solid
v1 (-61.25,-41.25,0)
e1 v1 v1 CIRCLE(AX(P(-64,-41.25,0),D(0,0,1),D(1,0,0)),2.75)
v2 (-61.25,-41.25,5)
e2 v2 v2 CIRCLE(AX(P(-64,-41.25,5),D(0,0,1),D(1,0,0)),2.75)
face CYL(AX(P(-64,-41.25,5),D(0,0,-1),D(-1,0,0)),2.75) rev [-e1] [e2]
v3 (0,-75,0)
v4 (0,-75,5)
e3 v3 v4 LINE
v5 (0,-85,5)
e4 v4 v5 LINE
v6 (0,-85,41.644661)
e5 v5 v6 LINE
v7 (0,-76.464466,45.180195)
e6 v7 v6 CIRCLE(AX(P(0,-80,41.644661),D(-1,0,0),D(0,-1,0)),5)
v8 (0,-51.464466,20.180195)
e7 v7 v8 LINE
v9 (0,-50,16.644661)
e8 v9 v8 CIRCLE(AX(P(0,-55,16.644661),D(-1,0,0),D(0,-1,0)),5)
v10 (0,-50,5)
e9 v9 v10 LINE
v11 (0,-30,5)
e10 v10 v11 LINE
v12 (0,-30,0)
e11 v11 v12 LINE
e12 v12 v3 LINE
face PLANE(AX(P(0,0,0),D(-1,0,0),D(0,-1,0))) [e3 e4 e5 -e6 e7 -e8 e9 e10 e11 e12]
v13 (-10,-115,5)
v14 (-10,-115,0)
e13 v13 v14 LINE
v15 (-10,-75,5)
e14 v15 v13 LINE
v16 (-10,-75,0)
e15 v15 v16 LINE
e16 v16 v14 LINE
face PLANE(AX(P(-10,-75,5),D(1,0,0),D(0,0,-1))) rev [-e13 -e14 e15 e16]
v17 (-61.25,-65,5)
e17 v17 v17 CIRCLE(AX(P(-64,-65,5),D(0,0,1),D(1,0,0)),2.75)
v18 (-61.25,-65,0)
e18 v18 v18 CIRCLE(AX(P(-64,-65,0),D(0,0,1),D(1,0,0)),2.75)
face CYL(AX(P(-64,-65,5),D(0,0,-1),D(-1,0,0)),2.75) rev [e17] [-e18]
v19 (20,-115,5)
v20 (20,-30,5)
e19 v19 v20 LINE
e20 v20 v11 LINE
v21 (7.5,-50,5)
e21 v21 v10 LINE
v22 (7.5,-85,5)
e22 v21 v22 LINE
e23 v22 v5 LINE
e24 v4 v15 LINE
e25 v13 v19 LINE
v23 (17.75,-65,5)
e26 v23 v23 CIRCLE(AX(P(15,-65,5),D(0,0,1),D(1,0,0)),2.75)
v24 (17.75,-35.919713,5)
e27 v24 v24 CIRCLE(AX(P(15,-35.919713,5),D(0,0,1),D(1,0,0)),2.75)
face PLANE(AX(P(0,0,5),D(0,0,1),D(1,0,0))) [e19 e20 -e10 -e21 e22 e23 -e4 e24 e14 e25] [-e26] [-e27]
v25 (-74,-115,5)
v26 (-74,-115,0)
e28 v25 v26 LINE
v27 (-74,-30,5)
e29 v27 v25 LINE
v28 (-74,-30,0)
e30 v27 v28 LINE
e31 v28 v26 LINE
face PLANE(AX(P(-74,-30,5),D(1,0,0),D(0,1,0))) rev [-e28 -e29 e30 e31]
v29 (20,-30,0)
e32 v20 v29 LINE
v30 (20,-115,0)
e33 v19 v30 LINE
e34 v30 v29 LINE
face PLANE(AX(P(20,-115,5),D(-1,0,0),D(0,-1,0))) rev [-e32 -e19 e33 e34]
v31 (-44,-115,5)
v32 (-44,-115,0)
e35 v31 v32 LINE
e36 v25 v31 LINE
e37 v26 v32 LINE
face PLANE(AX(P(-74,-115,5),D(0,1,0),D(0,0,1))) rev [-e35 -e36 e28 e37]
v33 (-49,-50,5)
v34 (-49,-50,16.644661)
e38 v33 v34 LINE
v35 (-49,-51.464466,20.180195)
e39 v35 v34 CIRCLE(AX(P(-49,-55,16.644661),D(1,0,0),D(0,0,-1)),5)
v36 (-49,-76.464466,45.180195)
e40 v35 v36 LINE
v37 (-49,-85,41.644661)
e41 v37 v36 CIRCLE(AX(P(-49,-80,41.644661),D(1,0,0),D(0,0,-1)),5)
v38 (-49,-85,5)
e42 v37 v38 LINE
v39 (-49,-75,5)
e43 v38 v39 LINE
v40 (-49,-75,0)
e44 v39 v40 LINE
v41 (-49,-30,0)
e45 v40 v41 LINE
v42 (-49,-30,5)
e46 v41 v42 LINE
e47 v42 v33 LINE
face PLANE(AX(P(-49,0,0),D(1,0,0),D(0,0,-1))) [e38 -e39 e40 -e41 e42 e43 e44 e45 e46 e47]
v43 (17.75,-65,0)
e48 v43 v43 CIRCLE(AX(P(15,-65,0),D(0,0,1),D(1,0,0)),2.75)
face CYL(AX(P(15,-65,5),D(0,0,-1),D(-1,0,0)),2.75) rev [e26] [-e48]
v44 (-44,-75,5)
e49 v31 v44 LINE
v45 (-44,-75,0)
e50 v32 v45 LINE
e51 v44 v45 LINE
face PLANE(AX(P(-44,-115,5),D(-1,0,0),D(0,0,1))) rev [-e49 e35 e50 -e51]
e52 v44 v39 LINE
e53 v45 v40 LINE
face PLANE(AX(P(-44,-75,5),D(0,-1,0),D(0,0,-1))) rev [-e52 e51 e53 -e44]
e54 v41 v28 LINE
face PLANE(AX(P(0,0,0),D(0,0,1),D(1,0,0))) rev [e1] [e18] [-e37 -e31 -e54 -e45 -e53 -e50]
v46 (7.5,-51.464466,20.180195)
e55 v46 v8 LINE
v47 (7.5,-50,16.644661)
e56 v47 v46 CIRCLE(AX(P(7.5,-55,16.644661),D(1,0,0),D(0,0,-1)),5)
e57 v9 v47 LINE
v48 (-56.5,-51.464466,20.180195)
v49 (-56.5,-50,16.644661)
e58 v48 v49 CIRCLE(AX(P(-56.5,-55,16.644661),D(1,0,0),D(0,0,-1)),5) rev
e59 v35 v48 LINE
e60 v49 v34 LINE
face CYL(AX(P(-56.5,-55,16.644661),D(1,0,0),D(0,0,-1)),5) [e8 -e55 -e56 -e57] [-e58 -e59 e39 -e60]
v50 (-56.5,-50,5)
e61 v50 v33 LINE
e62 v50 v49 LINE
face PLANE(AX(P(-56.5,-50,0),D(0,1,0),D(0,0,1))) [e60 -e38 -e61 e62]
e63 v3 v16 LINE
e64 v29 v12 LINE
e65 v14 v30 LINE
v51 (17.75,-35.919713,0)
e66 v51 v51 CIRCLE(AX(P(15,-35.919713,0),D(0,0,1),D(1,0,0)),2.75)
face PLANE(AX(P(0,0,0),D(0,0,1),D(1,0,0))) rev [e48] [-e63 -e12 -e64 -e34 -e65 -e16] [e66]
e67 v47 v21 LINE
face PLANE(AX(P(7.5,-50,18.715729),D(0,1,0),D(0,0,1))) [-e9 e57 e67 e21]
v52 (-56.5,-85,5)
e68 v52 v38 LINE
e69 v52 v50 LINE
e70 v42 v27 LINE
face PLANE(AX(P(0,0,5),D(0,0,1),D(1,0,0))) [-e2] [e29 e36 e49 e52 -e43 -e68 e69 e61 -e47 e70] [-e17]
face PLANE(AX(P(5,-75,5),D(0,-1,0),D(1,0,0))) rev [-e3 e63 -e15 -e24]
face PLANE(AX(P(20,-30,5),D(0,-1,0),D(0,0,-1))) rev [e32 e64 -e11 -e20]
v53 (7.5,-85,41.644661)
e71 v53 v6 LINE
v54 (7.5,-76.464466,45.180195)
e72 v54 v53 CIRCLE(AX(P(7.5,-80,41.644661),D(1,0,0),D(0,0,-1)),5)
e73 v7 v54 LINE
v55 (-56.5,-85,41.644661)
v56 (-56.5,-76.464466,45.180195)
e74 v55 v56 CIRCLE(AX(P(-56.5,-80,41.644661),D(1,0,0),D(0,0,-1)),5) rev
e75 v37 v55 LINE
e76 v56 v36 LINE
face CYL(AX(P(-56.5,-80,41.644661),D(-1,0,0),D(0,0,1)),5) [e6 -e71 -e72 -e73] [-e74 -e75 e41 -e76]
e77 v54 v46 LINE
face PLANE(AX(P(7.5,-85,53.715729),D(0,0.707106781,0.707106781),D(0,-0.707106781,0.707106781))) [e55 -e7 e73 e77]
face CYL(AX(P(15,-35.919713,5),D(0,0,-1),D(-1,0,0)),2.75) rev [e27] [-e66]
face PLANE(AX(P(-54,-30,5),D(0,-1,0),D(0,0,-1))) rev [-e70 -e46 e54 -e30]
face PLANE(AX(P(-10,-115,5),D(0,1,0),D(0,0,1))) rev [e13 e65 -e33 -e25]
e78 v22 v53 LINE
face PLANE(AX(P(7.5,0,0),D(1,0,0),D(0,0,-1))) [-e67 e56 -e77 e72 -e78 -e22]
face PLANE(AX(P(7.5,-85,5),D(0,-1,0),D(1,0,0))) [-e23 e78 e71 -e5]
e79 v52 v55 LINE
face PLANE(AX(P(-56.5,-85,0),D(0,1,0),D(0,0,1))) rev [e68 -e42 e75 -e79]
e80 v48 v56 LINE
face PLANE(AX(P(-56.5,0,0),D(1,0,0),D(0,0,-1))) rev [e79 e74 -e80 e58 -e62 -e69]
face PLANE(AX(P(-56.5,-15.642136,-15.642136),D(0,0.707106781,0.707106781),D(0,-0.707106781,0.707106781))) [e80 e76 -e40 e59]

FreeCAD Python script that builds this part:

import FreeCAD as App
import Part
import Sketcher
Q = App.Units.Quantity


def edges_at(feature, points):
    """Names of the edges that pass closest to the given points."""
    edges = feature.Shape.Edges
    near = lambda p: min(range(len(edges)), key=lambda i: edges[i].distToShape(Part.Vertex(*p))[0])
    return sorted({f"Edge{near(p) + 1}" for p in points})


def add_polygon(sketch, points):
    """Adds a closed chain of lines whose ends are joined by coincident constraints."""
    first, n = sketch.GeometryCount, len(points)
    for a, b in zip(points, points[1:] + points[:1]):
        sketch.addGeometry(Part.LineSegment(App.Vector(*a, 0), App.Vector(*b, 0)), False)
    for i in range(n):
        sketch.addConstraint(Sketcher.Constraint("Coincident", first + i, 2, first + (i + 1) % n, 1))

doc = App.newDocument("Part")
body = doc.addObject("PartDesign::Body", "Body")

sketch1 = body.newObject("Sketcher::SketchObject", "Sketch")
sketch1.AttachmentSupport = (doc.getObject("XY_Plane"), [""])
sketch1.MapMode = "FlatFace"
add_polygon(sketch1, [(-10, -75), (-10, -115), (20, -115), (20, -30), (5, -30), (5, -75)])
sketch1.addGeometry(Part.Circle(App.Vector(15, -65, 0), App.Vector(0, 0, 1), 2.75), False)
sketch1.addGeometry(Part.Circle(App.Vector(15, -35.919713, 0), App.Vector(0, 0, 1), 2.75), False)
sketch1.addConstraint([
    Sketcher.Constraint("Vertical", 0),
    Sketcher.Constraint("Horizontal", 1),
    Sketcher.Constraint("Vertical", 2),
    Sketcher.Constraint("Horizontal", 3),
    Sketcher.Constraint("Vertical", 4),
    Sketcher.Constraint("Horizontal", 5),
    Sketcher.Constraint("Equal", 6, 7),
    Sketcher.Constraint("Vertical", 6, 3, 7, 3),
    Sketcher.Constraint("Equal", 3, 5),
    Sketcher.Constraint("Diameter", 6, 5.5),
    Sketcher.Constraint("DistanceX", 1, 1, 1, 2, 30.0),
    Sketcher.Constraint("DistanceY", 0, 2, 0, 1, 40.0),
    Sketcher.Constraint("DistanceY", 2, 1, 2, 2, 85.0),
    Sketcher.Constraint("DistanceX", -1, 1, 6, 3, 15.0),
    Sketcher.Constraint("DistanceY", 6, 3, -1, 1, 65.0),
    Sketcher.Constraint("DistanceX", 0, 2, -1, 1, 10.0),
    Sketcher.Constraint("DistanceY", 0, 2, -1, 1, 115.0),
    Sketcher.Constraint("DistanceY", 7, 3, -1, 1, 35.919713),
])
pad1 = body.newObject("PartDesign::Pad", "Pad")
pad1.Profile = sketch1
pad1.Length = 5

sketch2 = body.newObject("Sketcher::SketchObject", "Sketch001")
sketch2.AttachmentSupport = (doc.getObject("YZ_Plane"), [""])
sketch2.MapMode = "FlatFace"
sketch2.AttachmentOffset = App.Placement(App.Vector(0, 0, 5), App.Rotation())
add_polygon(sketch2, [(-30, 0), (-75, 0), (-75, 5), (-85, 5), (-85, 53.715729), (-50, 18.715729), (-50, 5), (-30, 5)])
sketch2.addConstraint([
    Sketcher.Constraint("Horizontal", 0),
    Sketcher.Constraint("Vertical", 1),
    Sketcher.Constraint("Horizontal", 2),
    Sketcher.Constraint("Vertical", 3),
    Sketcher.Constraint("Vertical", 5),
    Sketcher.Constraint("Horizontal", 6),
    Sketcher.Constraint("Vertical", 7),
    Sketcher.Constraint("PointOnObject", 0, 2, -1),
    Sketcher.Constraint("Horizontal", 2, 2, 5, 2),
    Sketcher.Constraint("DistanceX", 0, 2, 0, 1, 45.0),
    Sketcher.Constraint("DistanceX", 2, 2, 2, 1, 10.0),
    Sketcher.Constraint("DistanceX", 6, 1, 6, 2, 20.0),
    Sketcher.Constraint("DistanceY", 1, 1, 1, 2, 5.0),
    Sketcher.Constraint("Angle", 4, Q("-45 deg")),
    Sketcher.Constraint("DistanceX", 0, 2, -1, 1, 75.0),
    Sketcher.Constraint("DistanceY", 3, 1, 3, 2, 48.715729),
])
pad2 = body.newObject("PartDesign::Pad", "Pad001")
pad2.Profile = sketch2
pad2.Length = 2.5

sketch3 = body.newObject("Sketcher::SketchObject", "Sketch002")
sketch3.AttachmentSupport = (doc.getObject("YZ_Plane"), [""])
sketch3.MapMode = "FlatFace"
sketch3.AttachmentOffset = App.Placement(App.Vector(0, 0, 5), App.Rotation())
add_polygon(sketch3, [(-30, 0), (-75, 0), (-75, 5), (-85, 5), (-85, 53.715729), (-50, 18.715729), (-50, 5), (-30, 5)])
sketch3.addConstraint([
    Sketcher.Constraint("Horizontal", 0),
    Sketcher.Constraint("Vertical", 1),
    Sketcher.Constraint("Horizontal", 2),
    Sketcher.Constraint("Vertical", 3),
    Sketcher.Constraint("Vertical", 5),
    Sketcher.Constraint("Horizontal", 6),
    Sketcher.Constraint("Vertical", 7),
    Sketcher.Constraint("PointOnObject", 0, 2, -1),
    Sketcher.Constraint("Horizontal", 2, 2, 5, 2),
    Sketcher.Constraint("DistanceX", 0, 2, 0, 1, 45.0),
    Sketcher.Constraint("DistanceX", 2, 2, 2, 1, 10.0),
    Sketcher.Constraint("DistanceX", 6, 1, 6, 2, 20.0),
    Sketcher.Constraint("DistanceY", 1, 1, 1, 2, 5.0),
    Sketcher.Constraint("Angle", 4, Q("-45 deg")),
    Sketcher.Constraint("DistanceX", 0, 2, -1, 1, 75.0),
    Sketcher.Constraint("DistanceY", 3, 1, 3, 2, 48.715729),
])
pad3 = body.newObject("PartDesign::Pad", "Pad002")
pad3.Profile = sketch3
pad3.Length = 5
pad3.Reversed = True
doc.recompute()

fillet = body.newObject("PartDesign::Fillet", "Fillet")
fillet.Base = (pad3, edges_at(pad3, [(3.75, -85, 53.716)]))
fillet.Radius = 5
doc.recompute()

fillet2 = body.newObject("PartDesign::Fillet", "Fillet001")
fillet2.Base = (fillet, edges_at(fillet, [(3.75, -50, 18.716)]))
fillet2.Radius = 5
body2 = doc.addObject("PartDesign::Body", "Body001")

sketch4 = body2.newObject("Sketcher::SketchObject", "Sketch003")
sketch4.AttachmentSupport = (doc.getObject("XY_Plane001"), [""])
sketch4.MapMode = "FlatFace"
add_polygon(sketch4, [(-74, -30), (-74, -115), (-44, -115), (-44, -75), (-54, -75), (-54, -30)])
sketch4.addGeometry(Part.Circle(App.Vector(-64, -65, 0), App.Vector(0, 0, 1), 2.75), False)
sketch4.addGeometry(Part.Circle(App.Vector(-64, -41.25, 0), App.Vector(0, 0, 1), 2.75), False)
sketch4.addConstraint([
    Sketcher.Constraint("Vertical", 0),
    Sketcher.Constraint("Horizontal", 1),
    Sketcher.Constraint("Vertical", 2),
    Sketcher.Constraint("Horizontal", 3),
    Sketcher.Constraint("Vertical", 4),
    Sketcher.Constraint("Horizontal", 5),
    Sketcher.Constraint("Equal", 6, 7),
    Sketcher.Constraint("Vertical", 6, 3, 7, 3),
    Sketcher.Constraint("Diameter", 6, 5.5),
    Sketcher.Constraint("DistanceX", 1, 1, 1, 2, 30.0),
    Sketcher.Constraint("DistanceX", 3, 2, 3, 1, 10.0),
    Sketcher.Constraint("DistanceY", 0, 2, 0, 1, 85.0),
    Sketcher.Constraint("DistanceY", 2, 1, 2, 2, 40.0),
    Sketcher.Constraint("DistanceX", 6, 3, -1, 1, 64.0),
    Sketcher.Constraint("DistanceY", 6, 3, -1, 1, 65.0),
    Sketcher.Constraint("DistanceX", 0, 2, -1, 1, 74.0),
    Sketcher.Constraint("DistanceY", 0, 2, -1, 1, 115.0),
    Sketcher.Constraint("DistanceY", 7, 3, -1, 1, 41.25),
])
pad4 = body2.newObject("PartDesign::Pad", "Pad003")
pad4.Profile = sketch4
pad4.Length = 5

sketch5 = body2.newObject("Sketcher::SketchObject", "Sketch004")
sketch5.AttachmentSupport = (doc.getObject("YZ_Plane001"), [""])
sketch5.MapMode = "FlatFace"
sketch5.AttachmentOffset = App.Placement(App.Vector(0, 0, -54), App.Rotation())
add_polygon(sketch5, [(-50, 5), (-50, 18.715729), (-85, 53.715729), (-85, 5)])
sketch5.addConstraint([
    Sketcher.Constraint("Vertical", 0),
    Sketcher.Constraint("Vertical", 2),
    Sketcher.Constraint("Horizontal", 3),
    Sketcher.Constraint("DistanceX", 3, 1, 3, 2, 35.0),
    Sketcher.Constraint("Angle", 1, Q("135 deg")),
    Sketcher.Constraint("DistanceX", 0, 2, -1, 1, 50.0),
    Sketcher.Constraint("DistanceY", -1, 1, 2, 2, 5.0),
    Sketcher.Constraint("DistanceY", 0, 1, 0, 2, 13.715729),
])
pad5 = body2.newObject("PartDesign::Pad", "Pad004")
pad5.Profile = sketch5
pad5.Length = 2.5
pad5.Reversed = True

sketch6 = body2.newObject("Sketcher::SketchObject", "Sketch005")
sketch6.AttachmentSupport = (doc.getObject("YZ_Plane001"), [""])
sketch6.MapMode = "FlatFace"
sketch6.AttachmentOffset = App.Placement(App.Vector(0, 0, -54), App.Rotation())
add_polygon(sketch6, [(-75, 0), (-30, 0), (-30, 5), (-50, 5), (-50, 18.715729), (-85, 53.715729), (-85, 5), (-75, 5)])
sketch6.addConstraint([
    Sketcher.Constraint("Horizontal", 0),
    Sketcher.Constraint("Vertical", 1),
    Sketcher.Constraint("Horizontal", 2),
    Sketcher.Constraint("Vertical", 3),
    Sketcher.Constraint("Vertical", 5),
    Sketcher.Constraint("Horizontal", 6),
    Sketcher.Constraint("Vertical", 7),
    Sketcher.Constraint("PointOnObject", 0, 2, -1),
    Sketcher.Constraint("Horizontal", 2, 2, 5, 2),
    Sketcher.Constraint("DistanceX", 0, 1, 0, 2, 45.0),
    Sketcher.Constraint("DistanceX", 2, 2, 2, 1, 20.0),
    Sketcher.Constraint("DistanceX", 6, 1, 6, 2, 10.0),
    Sketcher.Constraint("DistanceY", 1, 1, 1, 2, 5.0),
    Sketcher.Constraint("Angle", 4, Q("135 deg")),
    Sketcher.Constraint("DistanceX", 0, 2, -1, 1, 30.0),
    Sketcher.Constraint("DistanceY", 3, 1, 3, 2, 13.715729),
])
pad6 = body2.newObject("PartDesign::Pad", "Pad005")
pad6.Profile = sketch6
pad6.Length = 5
doc.recompute()

fillet3 = body2.newObject("PartDesign::Fillet", "Fillet002")
fillet3.Base = (pad6, edges_at(pad6, [(-52.75, -85, 53.716)]))
fillet3.Radius = 5
doc.recompute()

fillet4 = body2.newObject("PartDesign::Fillet", "Fillet003")
fillet4.Base = (fillet3, edges_at(fillet3, [(-52.75, -50, 18.716)]))
fillet4.Radius = 5
body.AllowCompound = True
doc.recompute()

boolean = body.newObject("PartDesign::Boolean", "Boolean")
boolean.Type = "Fuse"
boolean.addObjects([body2])

sketch7 = body.newObject("Sketcher::SketchObject", "Sketch006")
sketch7.AttachmentSupport = (doc.getObject("YZ_Plane"), [""])
sketch7.MapMode = "FlatFace"
sketch7.AttachmentOffset = App.Placement(App.Vector(0, 0, -49), App.Rotation())
sketch7.addGeometry(Part.Circle(App.Vector(-80, 41.644661, 0), App.Vector(0, 0, 1), 5), False)
sketch7.addConstraint([
    Sketcher.Constraint("Diameter", 0, 10.0),
    Sketcher.Constraint("DistanceX", 0, 3, -1, 1, 80.0),
    Sketcher.Constraint("DistanceY", -1, 1, 0, 3, 41.644661),
])
pad7 = body.newObject("PartDesign::Pad", "Pad006")
pad7.Profile = sketch7
pad7.Length = 49

sketch8 = body.newObject("Sketcher::SketchObject", "Sketch007")
sketch8.AttachmentSupport = (doc.getObject("YZ_Plane"), [""])
sketch8.MapMode = "FlatFace"
sketch8.addGeometry(Part.Circle(App.Vector(-55, 16.644661, 0), App.Vector(0, 0, 1), 5), False)
sketch8.addConstraint([
    Sketcher.Constraint("Diameter", 0, 10.0),
    Sketcher.Constraint("DistanceX", 0, 3, -1, 1, 55.0),
    Sketcher.Constraint("DistanceY", -1, 1, 0, 3, 16.644661),
])
pad8 = body.newObject("PartDesign::Pad", "Pad007")
pad8.Profile = sketch8
pad8.Length = 49
pad8.Reversed = True

doc.recompute()
